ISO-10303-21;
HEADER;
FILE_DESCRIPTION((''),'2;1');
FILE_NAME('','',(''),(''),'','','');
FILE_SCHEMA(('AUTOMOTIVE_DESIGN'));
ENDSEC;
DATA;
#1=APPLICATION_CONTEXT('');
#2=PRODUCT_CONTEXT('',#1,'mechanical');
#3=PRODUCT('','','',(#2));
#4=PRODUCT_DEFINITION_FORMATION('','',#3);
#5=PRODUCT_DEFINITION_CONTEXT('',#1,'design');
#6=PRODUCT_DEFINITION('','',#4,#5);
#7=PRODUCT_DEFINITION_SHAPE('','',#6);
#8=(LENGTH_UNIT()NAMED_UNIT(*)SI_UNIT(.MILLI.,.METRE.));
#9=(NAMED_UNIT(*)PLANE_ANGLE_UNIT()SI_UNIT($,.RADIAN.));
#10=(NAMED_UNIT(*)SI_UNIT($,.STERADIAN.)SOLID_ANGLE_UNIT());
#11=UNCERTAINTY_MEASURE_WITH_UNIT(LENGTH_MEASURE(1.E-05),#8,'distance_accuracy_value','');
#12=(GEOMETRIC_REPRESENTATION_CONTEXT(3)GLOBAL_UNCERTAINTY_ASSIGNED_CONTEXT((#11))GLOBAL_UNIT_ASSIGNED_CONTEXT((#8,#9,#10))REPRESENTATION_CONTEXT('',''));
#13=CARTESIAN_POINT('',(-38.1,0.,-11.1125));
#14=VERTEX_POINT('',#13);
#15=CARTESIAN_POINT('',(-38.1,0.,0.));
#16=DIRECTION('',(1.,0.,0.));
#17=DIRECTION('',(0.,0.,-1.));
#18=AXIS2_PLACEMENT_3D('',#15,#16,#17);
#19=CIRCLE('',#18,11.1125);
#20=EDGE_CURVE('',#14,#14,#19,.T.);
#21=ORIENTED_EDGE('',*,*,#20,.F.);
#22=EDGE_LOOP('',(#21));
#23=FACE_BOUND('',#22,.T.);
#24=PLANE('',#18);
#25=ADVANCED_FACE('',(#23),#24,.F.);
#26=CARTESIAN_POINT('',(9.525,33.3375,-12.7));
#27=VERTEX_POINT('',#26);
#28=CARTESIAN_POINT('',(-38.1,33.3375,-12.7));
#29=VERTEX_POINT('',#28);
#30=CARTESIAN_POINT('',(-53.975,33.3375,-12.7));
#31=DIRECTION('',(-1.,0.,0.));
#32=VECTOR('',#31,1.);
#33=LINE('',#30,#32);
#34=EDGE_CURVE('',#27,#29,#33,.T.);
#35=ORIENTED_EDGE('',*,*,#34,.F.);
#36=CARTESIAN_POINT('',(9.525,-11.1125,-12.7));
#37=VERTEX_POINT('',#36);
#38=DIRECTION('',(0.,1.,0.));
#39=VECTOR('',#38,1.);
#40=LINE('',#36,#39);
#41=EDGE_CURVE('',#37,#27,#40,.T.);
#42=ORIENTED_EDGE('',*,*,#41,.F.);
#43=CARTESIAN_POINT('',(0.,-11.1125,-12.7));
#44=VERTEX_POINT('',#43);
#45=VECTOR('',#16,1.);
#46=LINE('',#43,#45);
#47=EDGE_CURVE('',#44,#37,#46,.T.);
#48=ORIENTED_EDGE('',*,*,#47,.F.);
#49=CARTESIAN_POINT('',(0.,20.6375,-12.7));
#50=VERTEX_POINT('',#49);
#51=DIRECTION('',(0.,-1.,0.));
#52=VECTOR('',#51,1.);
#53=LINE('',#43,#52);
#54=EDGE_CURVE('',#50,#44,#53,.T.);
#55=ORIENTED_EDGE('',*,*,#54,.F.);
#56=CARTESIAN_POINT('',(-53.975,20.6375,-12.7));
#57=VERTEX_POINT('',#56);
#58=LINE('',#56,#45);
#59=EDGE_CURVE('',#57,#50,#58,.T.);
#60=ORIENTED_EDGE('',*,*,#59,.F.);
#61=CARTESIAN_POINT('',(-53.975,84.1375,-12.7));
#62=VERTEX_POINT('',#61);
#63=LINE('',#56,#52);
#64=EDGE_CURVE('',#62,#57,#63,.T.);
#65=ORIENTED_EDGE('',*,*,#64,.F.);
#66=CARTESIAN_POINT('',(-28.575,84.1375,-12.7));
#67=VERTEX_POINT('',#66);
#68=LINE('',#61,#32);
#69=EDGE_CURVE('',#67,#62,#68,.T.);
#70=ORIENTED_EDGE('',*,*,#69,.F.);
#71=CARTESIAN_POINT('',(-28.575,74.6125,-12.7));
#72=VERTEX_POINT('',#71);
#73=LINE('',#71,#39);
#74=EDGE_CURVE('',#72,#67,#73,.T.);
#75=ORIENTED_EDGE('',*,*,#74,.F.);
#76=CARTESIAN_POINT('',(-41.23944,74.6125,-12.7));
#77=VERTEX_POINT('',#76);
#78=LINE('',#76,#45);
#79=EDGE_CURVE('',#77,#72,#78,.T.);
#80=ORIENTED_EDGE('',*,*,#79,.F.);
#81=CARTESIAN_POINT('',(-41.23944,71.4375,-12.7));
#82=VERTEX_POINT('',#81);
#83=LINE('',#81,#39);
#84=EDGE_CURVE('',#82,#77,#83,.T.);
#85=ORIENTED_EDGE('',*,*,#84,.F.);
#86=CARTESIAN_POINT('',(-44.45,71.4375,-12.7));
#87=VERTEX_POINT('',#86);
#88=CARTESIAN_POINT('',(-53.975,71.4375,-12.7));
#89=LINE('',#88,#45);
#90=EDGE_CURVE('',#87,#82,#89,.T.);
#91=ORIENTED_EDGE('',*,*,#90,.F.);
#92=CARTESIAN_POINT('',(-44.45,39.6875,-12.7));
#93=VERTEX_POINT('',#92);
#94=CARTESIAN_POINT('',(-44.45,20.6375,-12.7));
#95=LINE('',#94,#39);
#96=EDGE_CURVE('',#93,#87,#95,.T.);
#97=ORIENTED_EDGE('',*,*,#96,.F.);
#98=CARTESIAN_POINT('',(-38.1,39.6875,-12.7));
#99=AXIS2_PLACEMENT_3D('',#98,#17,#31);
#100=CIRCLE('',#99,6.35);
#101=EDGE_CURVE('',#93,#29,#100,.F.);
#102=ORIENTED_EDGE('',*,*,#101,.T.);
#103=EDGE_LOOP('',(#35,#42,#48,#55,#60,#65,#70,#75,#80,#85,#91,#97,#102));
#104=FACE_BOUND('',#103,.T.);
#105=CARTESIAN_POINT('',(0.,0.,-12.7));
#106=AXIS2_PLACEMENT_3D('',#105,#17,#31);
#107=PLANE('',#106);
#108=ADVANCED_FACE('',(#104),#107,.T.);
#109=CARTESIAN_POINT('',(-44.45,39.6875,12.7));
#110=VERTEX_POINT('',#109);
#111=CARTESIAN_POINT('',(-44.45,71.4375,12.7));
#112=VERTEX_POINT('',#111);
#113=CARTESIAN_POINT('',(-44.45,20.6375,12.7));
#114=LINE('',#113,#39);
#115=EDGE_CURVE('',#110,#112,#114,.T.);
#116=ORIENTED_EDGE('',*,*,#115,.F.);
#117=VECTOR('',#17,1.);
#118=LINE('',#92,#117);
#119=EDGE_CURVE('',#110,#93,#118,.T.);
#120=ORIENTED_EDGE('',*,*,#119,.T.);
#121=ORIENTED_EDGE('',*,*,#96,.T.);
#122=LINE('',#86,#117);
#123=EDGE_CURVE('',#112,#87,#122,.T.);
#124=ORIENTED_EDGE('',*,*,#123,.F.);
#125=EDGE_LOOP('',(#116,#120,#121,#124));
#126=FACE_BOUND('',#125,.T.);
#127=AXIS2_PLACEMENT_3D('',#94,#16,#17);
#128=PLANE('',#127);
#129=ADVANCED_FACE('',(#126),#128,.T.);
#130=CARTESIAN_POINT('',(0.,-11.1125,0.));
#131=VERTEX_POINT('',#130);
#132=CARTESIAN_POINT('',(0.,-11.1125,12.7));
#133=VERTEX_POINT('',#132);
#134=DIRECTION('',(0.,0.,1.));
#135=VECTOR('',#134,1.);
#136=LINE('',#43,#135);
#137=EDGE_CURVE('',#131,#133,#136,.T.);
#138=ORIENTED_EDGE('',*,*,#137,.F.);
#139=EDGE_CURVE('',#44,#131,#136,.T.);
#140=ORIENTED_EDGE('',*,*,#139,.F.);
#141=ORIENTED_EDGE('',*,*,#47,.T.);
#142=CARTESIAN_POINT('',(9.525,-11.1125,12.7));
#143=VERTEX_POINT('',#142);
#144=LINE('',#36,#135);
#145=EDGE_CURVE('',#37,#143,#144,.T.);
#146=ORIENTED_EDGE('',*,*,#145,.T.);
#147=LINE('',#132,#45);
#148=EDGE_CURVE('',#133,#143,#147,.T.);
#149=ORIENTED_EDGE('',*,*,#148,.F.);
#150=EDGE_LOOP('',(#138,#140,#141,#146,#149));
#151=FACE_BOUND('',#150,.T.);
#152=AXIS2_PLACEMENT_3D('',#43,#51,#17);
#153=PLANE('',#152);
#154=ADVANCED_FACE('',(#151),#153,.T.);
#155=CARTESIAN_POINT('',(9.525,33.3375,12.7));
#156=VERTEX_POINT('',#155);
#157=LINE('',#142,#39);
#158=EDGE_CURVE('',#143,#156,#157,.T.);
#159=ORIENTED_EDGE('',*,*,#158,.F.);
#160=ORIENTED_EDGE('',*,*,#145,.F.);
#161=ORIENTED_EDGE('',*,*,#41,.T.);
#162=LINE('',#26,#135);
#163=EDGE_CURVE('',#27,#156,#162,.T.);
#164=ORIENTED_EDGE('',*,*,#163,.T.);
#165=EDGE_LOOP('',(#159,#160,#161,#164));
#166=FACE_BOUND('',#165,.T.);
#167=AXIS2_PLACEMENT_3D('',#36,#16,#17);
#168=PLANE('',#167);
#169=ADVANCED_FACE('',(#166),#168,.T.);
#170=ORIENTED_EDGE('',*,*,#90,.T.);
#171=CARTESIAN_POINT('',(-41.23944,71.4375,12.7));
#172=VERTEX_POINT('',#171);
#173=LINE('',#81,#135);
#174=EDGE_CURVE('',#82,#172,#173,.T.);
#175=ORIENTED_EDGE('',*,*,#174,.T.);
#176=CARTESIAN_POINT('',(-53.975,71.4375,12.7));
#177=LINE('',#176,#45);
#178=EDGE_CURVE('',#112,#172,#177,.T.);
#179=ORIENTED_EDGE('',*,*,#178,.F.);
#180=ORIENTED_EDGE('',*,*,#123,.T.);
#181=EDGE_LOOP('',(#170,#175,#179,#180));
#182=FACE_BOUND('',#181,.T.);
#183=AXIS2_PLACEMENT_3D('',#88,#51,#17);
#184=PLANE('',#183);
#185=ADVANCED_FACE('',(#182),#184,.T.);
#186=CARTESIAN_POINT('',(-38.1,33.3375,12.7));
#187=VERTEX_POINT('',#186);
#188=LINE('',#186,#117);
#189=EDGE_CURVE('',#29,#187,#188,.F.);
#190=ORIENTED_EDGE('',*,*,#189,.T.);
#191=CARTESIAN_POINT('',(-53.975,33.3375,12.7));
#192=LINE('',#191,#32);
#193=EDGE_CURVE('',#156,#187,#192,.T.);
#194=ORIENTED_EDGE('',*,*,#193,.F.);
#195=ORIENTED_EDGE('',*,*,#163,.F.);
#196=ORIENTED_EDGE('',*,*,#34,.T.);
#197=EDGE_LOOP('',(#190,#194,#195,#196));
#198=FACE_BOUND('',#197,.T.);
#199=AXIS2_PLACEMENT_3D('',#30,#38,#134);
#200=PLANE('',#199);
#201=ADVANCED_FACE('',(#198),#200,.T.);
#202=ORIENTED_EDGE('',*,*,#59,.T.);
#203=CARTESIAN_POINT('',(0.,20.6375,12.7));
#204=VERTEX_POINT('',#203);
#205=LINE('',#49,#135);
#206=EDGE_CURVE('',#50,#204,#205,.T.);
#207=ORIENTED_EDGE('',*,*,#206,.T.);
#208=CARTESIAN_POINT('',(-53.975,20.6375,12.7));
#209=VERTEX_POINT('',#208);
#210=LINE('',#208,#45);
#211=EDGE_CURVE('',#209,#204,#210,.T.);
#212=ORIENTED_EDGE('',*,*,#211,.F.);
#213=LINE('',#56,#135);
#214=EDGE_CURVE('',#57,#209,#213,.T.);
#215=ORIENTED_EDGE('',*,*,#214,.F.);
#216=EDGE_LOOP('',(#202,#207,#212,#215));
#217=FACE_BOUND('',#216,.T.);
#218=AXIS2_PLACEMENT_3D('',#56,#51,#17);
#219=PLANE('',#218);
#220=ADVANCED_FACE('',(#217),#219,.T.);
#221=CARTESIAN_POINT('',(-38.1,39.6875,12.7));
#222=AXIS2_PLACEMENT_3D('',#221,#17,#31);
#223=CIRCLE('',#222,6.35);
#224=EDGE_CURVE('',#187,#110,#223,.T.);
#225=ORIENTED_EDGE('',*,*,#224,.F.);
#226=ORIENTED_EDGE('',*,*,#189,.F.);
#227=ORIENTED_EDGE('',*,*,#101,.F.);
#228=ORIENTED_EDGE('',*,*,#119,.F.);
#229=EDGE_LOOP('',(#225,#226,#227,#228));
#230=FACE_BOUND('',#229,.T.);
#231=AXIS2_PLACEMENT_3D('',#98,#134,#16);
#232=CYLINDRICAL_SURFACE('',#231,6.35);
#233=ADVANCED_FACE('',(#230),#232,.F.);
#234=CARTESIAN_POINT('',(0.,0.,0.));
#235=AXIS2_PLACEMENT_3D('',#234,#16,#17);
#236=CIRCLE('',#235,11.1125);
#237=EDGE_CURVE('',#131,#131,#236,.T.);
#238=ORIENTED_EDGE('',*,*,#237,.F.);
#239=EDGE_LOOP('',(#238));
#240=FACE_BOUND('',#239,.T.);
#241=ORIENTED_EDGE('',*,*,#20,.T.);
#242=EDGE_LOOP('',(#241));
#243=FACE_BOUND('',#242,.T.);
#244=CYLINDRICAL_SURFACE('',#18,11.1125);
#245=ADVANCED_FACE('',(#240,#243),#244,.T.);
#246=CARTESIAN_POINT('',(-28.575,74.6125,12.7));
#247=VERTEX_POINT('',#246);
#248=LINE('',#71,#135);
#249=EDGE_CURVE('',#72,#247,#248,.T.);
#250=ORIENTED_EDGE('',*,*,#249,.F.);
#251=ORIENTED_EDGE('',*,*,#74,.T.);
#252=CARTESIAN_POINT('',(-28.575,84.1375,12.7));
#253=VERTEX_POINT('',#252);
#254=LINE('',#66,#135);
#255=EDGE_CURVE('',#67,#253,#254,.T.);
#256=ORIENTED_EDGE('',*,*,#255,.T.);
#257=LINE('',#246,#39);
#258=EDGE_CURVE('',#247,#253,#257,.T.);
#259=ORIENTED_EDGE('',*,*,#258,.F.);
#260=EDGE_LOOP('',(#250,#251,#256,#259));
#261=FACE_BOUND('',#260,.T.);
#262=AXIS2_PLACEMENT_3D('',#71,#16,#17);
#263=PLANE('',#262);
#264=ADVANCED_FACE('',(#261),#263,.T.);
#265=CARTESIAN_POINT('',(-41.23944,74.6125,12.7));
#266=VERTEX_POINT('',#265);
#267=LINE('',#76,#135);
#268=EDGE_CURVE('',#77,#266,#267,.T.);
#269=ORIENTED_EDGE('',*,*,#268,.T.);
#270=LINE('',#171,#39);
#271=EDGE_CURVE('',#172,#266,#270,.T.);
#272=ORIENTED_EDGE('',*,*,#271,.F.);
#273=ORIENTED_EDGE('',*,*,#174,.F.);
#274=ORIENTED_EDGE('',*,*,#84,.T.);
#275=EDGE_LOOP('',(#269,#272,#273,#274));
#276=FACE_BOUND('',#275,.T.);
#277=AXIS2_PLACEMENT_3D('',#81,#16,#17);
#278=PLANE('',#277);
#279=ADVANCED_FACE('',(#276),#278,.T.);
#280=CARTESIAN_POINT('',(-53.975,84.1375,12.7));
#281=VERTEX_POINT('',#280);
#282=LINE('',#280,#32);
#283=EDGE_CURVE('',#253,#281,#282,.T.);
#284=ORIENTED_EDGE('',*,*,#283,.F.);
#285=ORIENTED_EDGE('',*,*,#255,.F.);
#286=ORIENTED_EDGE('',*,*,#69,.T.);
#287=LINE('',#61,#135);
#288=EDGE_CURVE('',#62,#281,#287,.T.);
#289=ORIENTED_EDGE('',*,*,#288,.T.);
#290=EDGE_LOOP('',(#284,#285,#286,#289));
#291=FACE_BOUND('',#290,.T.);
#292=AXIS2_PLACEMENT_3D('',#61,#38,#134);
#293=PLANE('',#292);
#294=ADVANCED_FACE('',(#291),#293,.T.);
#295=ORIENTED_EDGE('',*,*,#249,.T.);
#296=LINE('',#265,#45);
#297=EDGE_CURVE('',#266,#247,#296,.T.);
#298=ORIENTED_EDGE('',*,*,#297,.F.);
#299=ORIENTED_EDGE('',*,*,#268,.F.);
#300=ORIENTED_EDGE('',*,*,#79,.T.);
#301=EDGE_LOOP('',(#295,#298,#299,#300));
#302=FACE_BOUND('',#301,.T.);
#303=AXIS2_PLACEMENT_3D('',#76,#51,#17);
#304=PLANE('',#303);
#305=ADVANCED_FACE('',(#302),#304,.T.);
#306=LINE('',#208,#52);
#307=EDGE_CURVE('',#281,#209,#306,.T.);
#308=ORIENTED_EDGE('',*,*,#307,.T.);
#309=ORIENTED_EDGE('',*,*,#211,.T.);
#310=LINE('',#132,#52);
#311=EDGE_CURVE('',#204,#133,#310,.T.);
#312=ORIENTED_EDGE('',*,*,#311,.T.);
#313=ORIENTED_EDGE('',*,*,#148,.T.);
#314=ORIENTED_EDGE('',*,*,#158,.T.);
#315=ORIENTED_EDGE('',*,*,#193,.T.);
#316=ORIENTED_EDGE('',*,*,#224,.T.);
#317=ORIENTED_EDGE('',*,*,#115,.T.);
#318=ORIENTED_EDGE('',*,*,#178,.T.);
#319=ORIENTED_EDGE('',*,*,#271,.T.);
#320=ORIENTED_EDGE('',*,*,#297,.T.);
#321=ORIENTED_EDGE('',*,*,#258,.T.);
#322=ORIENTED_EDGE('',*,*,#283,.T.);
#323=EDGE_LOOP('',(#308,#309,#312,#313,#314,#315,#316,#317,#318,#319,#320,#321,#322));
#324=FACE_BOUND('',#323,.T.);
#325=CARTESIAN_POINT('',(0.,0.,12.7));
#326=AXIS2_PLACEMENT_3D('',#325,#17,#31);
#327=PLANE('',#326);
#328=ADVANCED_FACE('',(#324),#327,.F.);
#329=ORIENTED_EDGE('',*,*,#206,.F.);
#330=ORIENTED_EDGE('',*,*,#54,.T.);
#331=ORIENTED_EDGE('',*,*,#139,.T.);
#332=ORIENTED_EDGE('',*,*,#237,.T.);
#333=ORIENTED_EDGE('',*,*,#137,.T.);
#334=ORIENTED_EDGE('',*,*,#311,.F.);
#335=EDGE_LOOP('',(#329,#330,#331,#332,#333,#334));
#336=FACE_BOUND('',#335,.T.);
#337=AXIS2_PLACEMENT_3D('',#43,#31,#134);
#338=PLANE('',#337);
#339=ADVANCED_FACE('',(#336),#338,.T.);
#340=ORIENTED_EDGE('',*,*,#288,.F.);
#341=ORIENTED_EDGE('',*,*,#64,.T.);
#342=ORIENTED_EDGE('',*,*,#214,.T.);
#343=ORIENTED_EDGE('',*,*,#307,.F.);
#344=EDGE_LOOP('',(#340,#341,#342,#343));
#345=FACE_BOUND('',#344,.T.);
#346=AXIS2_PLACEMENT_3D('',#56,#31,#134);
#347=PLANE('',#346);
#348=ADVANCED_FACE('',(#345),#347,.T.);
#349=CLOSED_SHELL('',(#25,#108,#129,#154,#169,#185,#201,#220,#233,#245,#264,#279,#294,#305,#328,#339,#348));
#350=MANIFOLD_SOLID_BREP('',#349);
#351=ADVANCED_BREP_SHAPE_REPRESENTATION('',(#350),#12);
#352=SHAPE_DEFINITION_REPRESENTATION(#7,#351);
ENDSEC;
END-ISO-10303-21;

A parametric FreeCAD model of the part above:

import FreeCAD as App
import Part
import Sketcher
Q = App.Units.Quantity


def edges_at(feature, points):
    """Names of the edges that pass closest to the given points."""
    edges = feature.Shape.Edges
    near = lambda p: min(range(len(edges)), key=lambda i: edges[i].distToShape(Part.Vertex(*p))[0])
    return sorted({f"Edge{near(p) + 1}" for p in points})

doc = App.newDocument("Part")
body = doc.addObject("PartDesign::Body", "Body")

# Sketch on YZ plane
sketch1 = body.newObject("Sketcher::SketchObject", "Sketch")
sketch1.AttachmentSupport = (doc.getObject("YZ_Plane"), [""])
sketch1.MapMode = "FlatFace"
sketch1.addGeometry(Part.Circle(App.Vector(0, 0, 0), App.Vector(0, 0, 1), 11), False)
sketch1.addConstraint([
    Sketcher.Constraint("Coincident", 0, 3, -1, 1),
    Sketcher.Constraint("Diameter", 0, Q("0.875 in")),
])
pad1 = body.newObject("PartDesign::Pad", "Pad")
pad1.Profile = sketch1
pad1.Length = Q("1.5 in")
pad1.Reversed = True

# Sketch on XY plane
sketch2 = body.newObject("Sketcher::SketchObject", "Sketch001")
sketch2.AttachmentSupport = (doc.getObject("XY_Plane"), [""])
sketch2.MapMode = "FlatFace"
sketch2.addGeometry([
    Part.LineSegment(App.Vector(0, 21, 0), App.Vector(0, -11, 0)),
    Part.LineSegment(App.Vector(0, -11, 0), App.Vector(10, -11, 0)),
    Part.LineSegment(App.Vector(10, -11, 0), App.Vector(10, 21, 0)),
    Part.LineSegment(App.Vector(10, 21, 0), App.Vector(0, 21, 0)),
], False)
sketch2.addConstraint([
    Sketcher.Constraint("Coincident", 0, 2, 1, 1),
    Sketcher.Constraint("Coincident", 1, 2, 2, 1),
    Sketcher.Constraint("Coincident", 2, 2, 3, 1),
    Sketcher.Constraint("Coincident", 3, 2, 0, 1),
    Sketcher.Constraint("Vertical", 0),
    Sketcher.Constraint("Horizontal", 1),
    Sketcher.Constraint("Vertical", 2),
    Sketcher.Constraint("Horizontal", 3),
    Sketcher.Constraint("PointOnObject", 0, 2, -2),
    Sketcher.Constraint("DistanceY", 0, 2, 0, 1, Q("1.25 in")),
    Sketcher.Constraint("DistanceX", 1, 1, 1, 2, Q("0.375 in")),
    Sketcher.Constraint("DistanceY", 0, 2, -1, 1, Q("0.4375 in")),
])
pad2 = body.newObject("PartDesign::Pad", "Pad001")
pad2.Profile = sketch2
pad2.Type = "TwoLengths"
pad2.Length = Q("0.5 in")
pad2.Length2 = Q("0.5 in")

# Sketch on XY plane
sketch3 = body.newObject("Sketcher::SketchObject", "Sketch002")
sketch3.AttachmentSupport = (doc.getObject("XY_Plane"), [""])
sketch3.MapMode = "FlatFace"
sketch3.addGeometry([
    Part.LineSegment(App.Vector(-54, 33, 0), App.Vector(-54, 21, 0)),
    Part.LineSegment(App.Vector(-54, 21, 0), App.Vector(10, 21, 0)),
    Part.LineSegment(App.Vector(10, 21, 0), App.Vector(10, 33, 0)),
    Part.LineSegment(App.Vector(10, 33, 0), App.Vector(-54, 33, 0)),
], False)
sketch3.addConstraint([
    Sketcher.Constraint("Coincident", 0, 2, 1, 1),
    Sketcher.Constraint("Coincident", 1, 2, 2, 1),
    Sketcher.Constraint("Coincident", 2, 2, 3, 1),
    Sketcher.Constraint("Coincident", 3, 2, 0, 1),
    Sketcher.Constraint("Vertical", 0),
    Sketcher.Constraint("Horizontal", 1),
    Sketcher.Constraint("Vertical", 2),
    Sketcher.Constraint("Horizontal", 3),
    Sketcher.Constraint("DistanceX", 1, 1, 1, 2, Q("2.5 in")),
    Sketcher.Constraint("DistanceY", 0, 2, 0, 1, Q("0.5 in")),
    Sketcher.Constraint("DistanceX", 0, 2, -1, 1, Q("2.125 in")),
    Sketcher.Constraint("DistanceY", -1, 1, 0, 2, Q("0.8125 in")),
])
pad3 = body.newObject("PartDesign::Pad", "Pad002")
pad3.Profile = sketch3
pad3.Type = "TwoLengths"
pad3.Length = Q("0.5 in")
pad3.Length2 = Q("0.5 in")

# Sketch on XY plane
sketch4 = body.newObject("Sketcher::SketchObject", "Sketch003")
sketch4.AttachmentSupport = (doc.getObject("XY_Plane"), [""])
sketch4.MapMode = "FlatFace"
sketch4.addGeometry([
    Part.LineSegment(App.Vector(-54, 84, 0), App.Vector(-54, 21, 0)),
    Part.LineSegment(App.Vector(-54, 21, 0), App.Vector(-44, 21, 0)),
    Part.LineSegment(App.Vector(-44, 21, 0), App.Vector(-44, 84, 0)),
    Part.LineSegment(App.Vector(-44, 84, 0), App.Vector(-54, 84, 0)),
], False)
sketch4.addConstraint([
    Sketcher.Constraint("Coincident", 0, 2, 1, 1),
    Sketcher.Constraint("Coincident", 1, 2, 2, 1),
    Sketcher.Constraint("Coincident", 2, 2, 3, 1),
    Sketcher.Constraint("Coincident", 3, 2, 0, 1),
    Sketcher.Constraint("Vertical", 0),
    Sketcher.Constraint("Horizontal", 1),
    Sketcher.Constraint("Vertical", 2),
    Sketcher.Constraint("Horizontal", 3),
    Sketcher.Constraint("DistanceY", 0, 2, 0, 1, Q("2.5 in")),
    Sketcher.Constraint("DistanceX", 1, 1, 1, 2, Q("0.375 in")),
    Sketcher.Constraint("DistanceX", 1, 2, -1, 1, Q("1.75 in")),
    Sketcher.Constraint("DistanceY", -1, 1, 0, 2, Q("0.8125 in")),
])
pad4 = body.newObject("PartDesign::Pad", "Pad003")
pad4.Profile = sketch4
pad4.Type = "TwoLengths"
pad4.Length = Q("0.5 in")
pad4.Length2 = Q("0.5 in")

# Sketch on XY plane
sketch5 = body.newObject("Sketcher::SketchObject", "Sketch004")
sketch5.AttachmentSupport = (doc.getObject("XY_Plane"), [""])
sketch5.MapMode = "FlatFace"
sketch5.addGeometry([
    Part.LineSegment(App.Vector(-54, 71.4, 0), App.Vector(-41.2, 71.4, 0)),  # 0
    Part.LineSegment(App.Vector(-41.2, 71.4, 0), App.Vector(-41.2, 74.6, 0)),  # 1
    Part.LineSegment(App.Vector(-41.2, 74.6, 0), App.Vector(-28.6, 74.6, 0)),  # 2
    Part.LineSegment(App.Vector(-28.6, 74.6, 0), App.Vector(-28.6, 84.1, 0)),  # 3
    Part.LineSegment(App.Vector(-28.6, 84.1, 0), App.Vector(-54, 84.1, 0)),  # 4
    Part.LineSegment(App.Vector(-54, 84.1, 0), App.Vector(-54, 71.4, 0)),  # 5
], False)
sketch5.addConstraint([
    Sketcher.Constraint("Coincident", 0, 2, 1, 1),
    Sketcher.Constraint("Coincident", 1, 2, 2, 1),
    Sketcher.Constraint("Coincident", 2, 2, 3, 1),
    Sketcher.Constraint("Coincident", 3, 2, 4, 1),
    Sketcher.Constraint("Coincident", 4, 2, 5, 1),
    Sketcher.Constraint("Coincident", 5, 2, 0, 1),
    Sketcher.Constraint("Horizontal", 0),
    Sketcher.Constraint("Vertical", 1),
    Sketcher.Constraint("Horizontal", 2),
    Sketcher.Constraint("Vertical", 3),
    Sketcher.Constraint("Horizontal", 4),
    Sketcher.Constraint("Vertical", 5),
    Sketcher.Constraint("DistanceX", 4, 2, 4, 1, Q("1 in")),
    Sketcher.Constraint("DistanceY", 5, 2, 5, 1, Q("0.5 in")),
    Sketcher.Constraint("DistanceY", 1, 1, 1, 2, Q("0.125 in")),
    Sketcher.Constraint("DistanceX", 0, 1, 0, 2, Q("0.5014 in")),
    Sketcher.Constraint("DistanceY", -1, 1, 0, 2, Q("2.8125 in")),
    Sketcher.Constraint("DistanceX", 2, 2, -1, 1, Q("1.125 in")),
])
pad5 = body.newObject("PartDesign::Pad", "Pad004")
pad5.Profile = sketch5
pad5.Type = "TwoLengths"
pad5.Length = Q("0.5 in")
pad5.Length2 = Q("0.5 in")
doc.recompute()

fillet = body.newObject("PartDesign::Fillet", "Fillet")
fillet.Base = (pad5, edges_at(pad5, [(-44.45, 33.337, 0)]))
fillet.Radius = Q("0.25 in")

doc.recompute()
